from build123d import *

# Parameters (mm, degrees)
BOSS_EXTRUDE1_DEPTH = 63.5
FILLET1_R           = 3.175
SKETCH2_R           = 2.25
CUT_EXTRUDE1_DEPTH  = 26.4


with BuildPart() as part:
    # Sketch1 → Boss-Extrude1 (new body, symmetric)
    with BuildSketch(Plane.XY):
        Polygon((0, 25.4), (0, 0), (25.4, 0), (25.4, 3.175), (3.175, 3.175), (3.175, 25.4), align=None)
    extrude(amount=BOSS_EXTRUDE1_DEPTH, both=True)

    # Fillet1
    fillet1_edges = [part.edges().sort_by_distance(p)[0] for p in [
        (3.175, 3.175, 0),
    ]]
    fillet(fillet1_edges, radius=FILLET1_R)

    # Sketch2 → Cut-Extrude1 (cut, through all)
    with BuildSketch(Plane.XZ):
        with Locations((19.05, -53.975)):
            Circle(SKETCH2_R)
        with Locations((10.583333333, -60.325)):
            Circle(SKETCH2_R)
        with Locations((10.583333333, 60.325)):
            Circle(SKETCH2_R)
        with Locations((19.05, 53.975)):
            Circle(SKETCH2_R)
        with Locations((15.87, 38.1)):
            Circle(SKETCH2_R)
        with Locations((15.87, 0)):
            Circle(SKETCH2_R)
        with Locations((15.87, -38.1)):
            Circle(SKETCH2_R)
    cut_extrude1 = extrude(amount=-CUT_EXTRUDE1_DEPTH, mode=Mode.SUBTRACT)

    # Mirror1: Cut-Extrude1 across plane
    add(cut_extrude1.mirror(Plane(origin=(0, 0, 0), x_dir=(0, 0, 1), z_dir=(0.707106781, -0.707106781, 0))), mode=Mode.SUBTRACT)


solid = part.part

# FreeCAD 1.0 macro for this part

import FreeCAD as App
import Part
import Sketcher

V = App.Vector
Q = App.Units.Quantity


def edges_at(feature, points):
    """Names of the edges that pass closest to the given points."""
    edges = feature.Shape.Edges
    near = lambda p: min(range(len(edges)), key=lambda i: edges[i].distToShape(Part.Vertex(*p))[0])
    return sorted({f"Edge{near(p) + 1}" for p in points})

doc = App.newDocument("Part")
body = doc.addObject("PartDesign::Body", "Body")

# Sketch on XY plane
sketch1 = body.newObject("Sketcher::SketchObject", "Sketch")
sketch1.AttachmentSupport = (doc.getObject("XY_Plane"), [""])
sketch1.MapMode = "FlatFace"
sketch1.addGeometry(Part.LineSegment(V(0, 25.4, 0), V(0, 0, 0)), False)
sketch1.addGeometry(Part.LineSegment(V(0, 0, 0), V(25.4, 0, 0)), False)
sketch1.addGeometry(Part.LineSegment(V(25.4, 0, 0), V(25.4, 3.2, 0)), False)
sketch1.addGeometry(Part.LineSegment(V(25.4, 3.2, 0), V(3.2, 3.2, 0)), False)
sketch1.addGeometry(Part.LineSegment(V(3.2, 3.2, 0), V(3.2, 25.4, 0)), False)
sketch1.addGeometry(Part.LineSegment(V(3.2, 25.4, 0), V(0, 25.4, 0)), False)
sketch1.addConstraint(Sketcher.Constraint("Coincident", 0, 2, 1, 1))
sketch1.addConstraint(Sketcher.Constraint("Coincident", 1, 2, 2, 1))
sketch1.addConstraint(Sketcher.Constraint("Coincident", 2, 2, 3, 1))
sketch1.addConstraint(Sketcher.Constraint("Coincident", 3, 2, 4, 1))
sketch1.addConstraint(Sketcher.Constraint("Coincident", 4, 2, 5, 1))
sketch1.addConstraint(Sketcher.Constraint("Coincident", 5, 2, 0, 1))
sketch1.addConstraint(Sketcher.Constraint("Vertical", 0))
sketch1.addConstraint(Sketcher.Constraint("Horizontal", 1))
sketch1.addConstraint(Sketcher.Constraint("Vertical", 2))
sketch1.addConstraint(Sketcher.Constraint("Horizontal", 3))
sketch1.addConstraint(Sketcher.Constraint("Vertical", 4))
sketch1.addConstraint(Sketcher.Constraint("Horizontal", 5))
sketch1.addConstraint(Sketcher.Constraint("Coincident", 0, 2, -1, 1))
sketch1.addConstraint(Sketcher.Constraint("Equal", 1, 0))
sketch1.addConstraint(Sketcher.Constraint("Equal", 5, 2))
sketch1.addConstraint(Sketcher.Constraint("DistanceX", 1, 1, 1, 2, Q("1 in")))
sketch1.addConstraint(Sketcher.Constraint("DistanceX", 3, 2, 3, 1, Q("0.875 in")))
pad1 = body.newObject("PartDesign::Pad", "Pad")
pad1.Profile = sketch1
pad1.Length = Q("5 in")
pad1.Midplane = True
doc.recompute()

fillet = body.newObject("PartDesign::Fillet", "Fillet")
fillet.Base = (pad1, edges_at(pad1, [(3.175, 3.175, 0)]))
fillet.Radius = Q("0.125 in")

# Sketch on XZ plane
sketch2 = body.newObject("Sketcher::SketchObject", "Sketch001")
sketch2.AttachmentSupport = (doc.getObject("XZ_Plane"), [""])
sketch2.MapMode = "FlatFace"
sketch2.addGeometry(Part.Circle(V(19.1, -54, 0), V(0, 0, 1), 2.2), False)
sketch2.addGeometry(Part.Circle(V(10.6, -60.3, 0), V(0, 0, 1), 2.2), False)
sketch2.addGeometry(Part.Circle(V(10.6, 60.3, 0), V(0, 0, 1), 2.2), False)
sketch2.addGeometry(Part.Circle(V(19.1, 54, 0), V(0, 0, 1), 2.2), False)
sketch2.addGeometry(Part.Circle(V(15.9, 38.1, 0), V(0, 0, 1), 2.2), False)
sketch2.addGeometry(Part.Circle(V(15.9, 0, 0), V(0, 0, 1), 2.2), False)
sketch2.addGeometry(Part.Circle(V(15.9, -38.1, 0), V(0, 0, 1), 2.2), False)
sketch2.addConstraint(Sketcher.Constraint("Equal", 0, 1))
sketch2.addConstraint(Sketcher.Constraint("Equal", 1, 2))
sketch2.addConstraint(Sketcher.Constraint("Equal", 2, 3))
sketch2.addConstraint(Sketcher.Constraint("Equal", 3, 4))
sketch2.addConstraint(Sketcher.Constraint("Equal", 4, 5))
sketch2.addConstraint(Sketcher.Constraint("Equal", 5, 6))
sketch2.addConstraint(Sketcher.Constraint("Symmetric", 1, 3, 2, 3, -1))
sketch2.addConstraint(Sketcher.Constraint("Symmetric", 0, 3, 3, 3, -1))
sketch2.addConstraint(Sketcher.Constraint("Symmetric", 4, 3, 6, 3, -1))
sketch2.addConstraint(Sketcher.Constraint("PointOnObject", 5, 3, -1))
sketch2.addConstraint(Sketcher.Constraint("Vertical", 4, 3, 5, 3))
sketch2.addConstraint(Sketcher.Constraint("DistanceY", 6, 3, 4, 3, Q("3 in")))
sketch2.addConstraint(Sketcher.Constraint("DistanceY", 0, 3, 2, 3, Q("4.5 in")))
sketch2.addConstraint(Sketcher.Constraint("Diameter", 0, 4.5))
sketch2.addConstraint(Sketcher.Constraint("DistanceX", -1, 1, 0, 3, Q("0.75 in")))
sketch2.addConstraint(Sketcher.Constraint("DistanceY", 1, 3, 0, 3, Q("0.25 in")))
sketch2.addConstraint(Sketcher.Constraint("DistanceX", -1, 1, 4, 3, 15.87))
sketch2.addConstraint(Sketcher.Constraint("DistanceX", -1, 1, 1, 3, 10.583333))
pocket1 = body.newObject("PartDesign::Pocket", "Pocket")
pocket1.Profile = sketch2
pocket1.Type = "ThroughAll"
doc.recompute()

datumplane = body.newObject("PartDesign::Plane", "DatumPlane")
datumplane.Placement = App.Placement(V(0, 0, 0), App.Rotation(V(-0.707106781, -0.707106781, 0), V(0, 0, -1), V(0.707106781, -0.707106781, 0), "ZXY"))
mirrored = body.newObject("PartDesign::Mirrored", "Mirrored")
mirrored.Originals = [pocket1]
mirrored.MirrorPlane = (datumplane, [""])
body.Tip = mirrored

doc.recompute()
